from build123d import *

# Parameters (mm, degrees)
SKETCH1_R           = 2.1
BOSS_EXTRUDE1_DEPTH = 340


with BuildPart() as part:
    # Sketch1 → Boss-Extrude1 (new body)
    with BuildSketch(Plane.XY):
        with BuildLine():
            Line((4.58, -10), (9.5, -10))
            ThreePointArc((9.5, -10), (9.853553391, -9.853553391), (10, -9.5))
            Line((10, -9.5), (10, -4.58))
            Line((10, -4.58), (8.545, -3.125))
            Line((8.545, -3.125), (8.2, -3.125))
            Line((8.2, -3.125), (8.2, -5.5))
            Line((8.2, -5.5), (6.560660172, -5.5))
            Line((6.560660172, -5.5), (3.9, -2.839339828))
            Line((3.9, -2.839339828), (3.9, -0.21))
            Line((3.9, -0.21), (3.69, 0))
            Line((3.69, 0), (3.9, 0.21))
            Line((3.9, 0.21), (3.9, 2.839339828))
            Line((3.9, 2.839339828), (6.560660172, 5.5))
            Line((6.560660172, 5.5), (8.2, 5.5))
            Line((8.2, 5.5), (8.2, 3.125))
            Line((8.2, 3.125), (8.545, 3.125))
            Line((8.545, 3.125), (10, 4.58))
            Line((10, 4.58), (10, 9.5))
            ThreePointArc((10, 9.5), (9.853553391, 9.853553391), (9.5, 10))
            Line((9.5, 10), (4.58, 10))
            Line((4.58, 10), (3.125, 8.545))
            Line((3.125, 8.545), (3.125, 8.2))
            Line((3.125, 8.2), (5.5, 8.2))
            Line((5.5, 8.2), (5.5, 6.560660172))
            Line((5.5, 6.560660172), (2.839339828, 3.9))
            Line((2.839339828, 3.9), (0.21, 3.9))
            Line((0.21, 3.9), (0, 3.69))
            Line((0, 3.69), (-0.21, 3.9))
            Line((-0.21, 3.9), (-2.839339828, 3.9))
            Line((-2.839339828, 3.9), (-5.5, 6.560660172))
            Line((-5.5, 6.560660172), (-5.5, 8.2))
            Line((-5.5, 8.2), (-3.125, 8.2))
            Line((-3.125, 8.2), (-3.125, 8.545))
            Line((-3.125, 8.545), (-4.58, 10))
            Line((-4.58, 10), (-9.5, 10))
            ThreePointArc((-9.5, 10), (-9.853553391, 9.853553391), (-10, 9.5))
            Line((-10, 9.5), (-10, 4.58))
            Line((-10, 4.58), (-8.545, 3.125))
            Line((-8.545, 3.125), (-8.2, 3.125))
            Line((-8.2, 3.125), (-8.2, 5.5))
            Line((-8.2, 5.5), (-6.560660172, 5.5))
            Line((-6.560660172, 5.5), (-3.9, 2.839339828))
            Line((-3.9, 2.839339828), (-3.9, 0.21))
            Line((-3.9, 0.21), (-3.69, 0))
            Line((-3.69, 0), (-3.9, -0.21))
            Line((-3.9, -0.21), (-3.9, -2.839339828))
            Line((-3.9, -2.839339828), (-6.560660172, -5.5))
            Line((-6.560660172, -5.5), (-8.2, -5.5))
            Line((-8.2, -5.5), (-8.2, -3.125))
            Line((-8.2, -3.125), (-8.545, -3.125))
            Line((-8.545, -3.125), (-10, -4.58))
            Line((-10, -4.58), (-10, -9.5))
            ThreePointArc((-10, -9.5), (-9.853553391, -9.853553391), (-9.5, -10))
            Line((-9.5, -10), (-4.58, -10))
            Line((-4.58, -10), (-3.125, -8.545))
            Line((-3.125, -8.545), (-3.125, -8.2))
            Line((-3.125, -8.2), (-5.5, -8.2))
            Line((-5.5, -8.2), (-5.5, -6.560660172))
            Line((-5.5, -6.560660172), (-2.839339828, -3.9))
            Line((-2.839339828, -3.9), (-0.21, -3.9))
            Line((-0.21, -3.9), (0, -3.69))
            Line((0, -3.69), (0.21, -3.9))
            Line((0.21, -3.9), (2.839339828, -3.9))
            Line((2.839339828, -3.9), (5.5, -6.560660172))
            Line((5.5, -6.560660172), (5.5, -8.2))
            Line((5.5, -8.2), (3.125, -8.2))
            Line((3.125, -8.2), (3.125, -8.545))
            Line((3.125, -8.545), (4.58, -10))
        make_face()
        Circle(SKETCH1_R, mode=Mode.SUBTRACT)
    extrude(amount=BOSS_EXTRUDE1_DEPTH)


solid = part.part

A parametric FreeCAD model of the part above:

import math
import FreeCAD as App
import Part
import Sketcher
Q = App.Units.Quantity

doc = App.newDocument("Part")
body = doc.addObject("PartDesign::Body", "Body")

sketch1 = body.newObject("Sketcher::SketchObject", "Sketch")
sketch1.AttachmentSupport = (doc.getObject("XY_Plane"), [""])
sketch1.MapMode = "FlatFace"
sketch1.addGeometry(Part.LineSegment(App.Vector(4.58, -10, 0), App.Vector(9.5, -10, 0)), False)
sketch1.addGeometry(Part.ArcOfCircle(Part.Circle(App.Vector(9.5, -9.5, 0), App.Vector(0, 0, 1), 0.5), math.radians(-90), math.radians(0)), False)
sketch1.addGeometry(Part.LineSegment(App.Vector(10, -9.5, 0), App.Vector(10, -4.58, 0)), False)
sketch1.addGeometry(Part.LineSegment(App.Vector(10, -4.58, 0), App.Vector(8.54, -3.12, 0)), False)
sketch1.addGeometry(Part.LineSegment(App.Vector(8.54, -3.12, 0), App.Vector(8.2, -3.12, 0)), False)
sketch1.addGeometry(Part.LineSegment(App.Vector(8.2, -3.12, 0), App.Vector(8.2, -5.5, 0)), False)
sketch1.addGeometry(Part.LineSegment(App.Vector(8.2, -5.5, 0), App.Vector(6.56, -5.5, 0)), False)
sketch1.addGeometry(Part.LineSegment(App.Vector(6.56, -5.5, 0), App.Vector(3.9, -2.84, 0)), False)
sketch1.addGeometry(Part.LineSegment(App.Vector(3.9, -2.84, 0), App.Vector(3.9, -0.21, 0)), False)
sketch1.addGeometry(Part.LineSegment(App.Vector(3.9, -0.21, 0), App.Vector(3.69, 0, 0)), False)
sketch1.addGeometry(Part.LineSegment(App.Vector(3.69, 0, 0), App.Vector(3.9, 0.21, 0)), False)
sketch1.addGeometry(Part.LineSegment(App.Vector(3.9, 0.21, 0), App.Vector(3.9, 2.84, 0)), False)
sketch1.addGeometry(Part.LineSegment(App.Vector(3.9, 2.84, 0), App.Vector(6.56, 5.5, 0)), False)
sketch1.addGeometry(Part.LineSegment(App.Vector(6.56, 5.5, 0), App.Vector(8.2, 5.5, 0)), False)
sketch1.addGeometry(Part.LineSegment(App.Vector(8.2, 5.5, 0), App.Vector(8.2, 3.12, 0)), False)
sketch1.addGeometry(Part.LineSegment(App.Vector(8.2, 3.12, 0), App.Vector(8.54, 3.12, 0)), False)
sketch1.addGeometry(Part.LineSegment(App.Vector(8.54, 3.12, 0), App.Vector(10, 4.58, 0)), False)
sketch1.addGeometry(Part.LineSegment(App.Vector(10, 4.58, 0), App.Vector(10, 9.5, 0)), False)
sketch1.addGeometry(Part.ArcOfCircle(Part.Circle(App.Vector(9.5, 9.5, 0), App.Vector(0, 0, 1), 0.5), math.radians(0), math.radians(90)), False)
sketch1.addGeometry(Part.LineSegment(App.Vector(9.5, 10, 0), App.Vector(4.58, 10, 0)), False)
sketch1.addGeometry(Part.LineSegment(App.Vector(4.58, 10, 0), App.Vector(3.12, 8.54, 0)), False)
sketch1.addGeometry(Part.LineSegment(App.Vector(3.12, 8.54, 0), App.Vector(3.12, 8.2, 0)), False)
sketch1.addGeometry(Part.LineSegment(App.Vector(3.12, 8.2, 0), App.Vector(5.5, 8.2, 0)), False)
sketch1.addGeometry(Part.LineSegment(App.Vector(5.5, 8.2, 0), App.Vector(5.5, 6.56, 0)), False)
sketch1.addGeometry(Part.LineSegment(App.Vector(5.5, 6.56, 0), App.Vector(2.84, 3.9, 0)), False)
sketch1.addGeometry(Part.LineSegment(App.Vector(2.84, 3.9, 0), App.Vector(0.21, 3.9, 0)), False)
sketch1.addGeometry(Part.LineSegment(App.Vector(0.21, 3.9, 0), App.Vector(0, 3.69, 0)), False)
sketch1.addGeometry(Part.LineSegment(App.Vector(0, 3.69, 0), App.Vector(-0.21, 3.9, 0)), False)
sketch1.addGeometry(Part.LineSegment(App.Vector(-0.21, 3.9, 0), App.Vector(-2.84, 3.9, 0)), False)
sketch1.addGeometry(Part.LineSegment(App.Vector(-2.84, 3.9, 0), App.Vector(-5.5, 6.56, 0)), False)
sketch1.addGeometry(Part.LineSegment(App.Vector(-5.5, 6.56, 0), App.Vector(-5.5, 8.2, 0)), False)
sketch1.addGeometry(Part.LineSegment(App.Vector(-5.5, 8.2, 0), App.Vector(-3.12, 8.2, 0)), False)
sketch1.addGeometry(Part.LineSegment(App.Vector(-3.12, 8.2, 0), App.Vector(-3.12, 8.54, 0)), False)
sketch1.addGeometry(Part.LineSegment(App.Vector(-3.12, 8.54, 0), App.Vector(-4.58, 10, 0)), False)
sketch1.addGeometry(Part.LineSegment(App.Vector(-4.58, 10, 0), App.Vector(-9.5, 10, 0)), False)
sketch1.addGeometry(Part.ArcOfCircle(Part.Circle(App.Vector(-9.5, 9.5, 0), App.Vector(0, 0, 1), 0.5), math.radians(90), math.radians(180)), False)
sketch1.addGeometry(Part.LineSegment(App.Vector(-10, 9.5, 0), App.Vector(-10, 4.58, 0)), False)
sketch1.addGeometry(Part.LineSegment(App.Vector(-10, 4.58, 0), App.Vector(-8.54, 3.12, 0)), False)
sketch1.addGeometry(Part.LineSegment(App.Vector(-8.54, 3.12, 0), App.Vector(-8.2, 3.12, 0)), False)
sketch1.addGeometry(Part.LineSegment(App.Vector(-8.2, 3.12, 0), App.Vector(-8.2, 5.5, 0)), False)
sketch1.addGeometry(Part.LineSegment(App.Vector(-8.2, 5.5, 0), App.Vector(-6.56, 5.5, 0)), False)
sketch1.addGeometry(Part.LineSegment(App.Vector(-6.56, 5.5, 0), App.Vector(-3.9, 2.84, 0)), False)
sketch1.addGeometry(Part.LineSegment(App.Vector(-3.9, 2.84, 0), App.Vector(-3.9, 0.21, 0)), False)
sketch1.addGeometry(Part.LineSegment(App.Vector(-3.9, 0.21, 0), App.Vector(-3.69, 0, 0)), False)
sketch1.addGeometry(Part.LineSegment(App.Vector(-3.69, 0, 0), App.Vector(-3.9, -0.21, 0)), False)
sketch1.addGeometry(Part.LineSegment(App.Vector(-3.9, -0.21, 0), App.Vector(-3.9, -2.84, 0)), False)
sketch1.addGeometry(Part.LineSegment(App.Vector(-3.9, -2.84, 0), App.Vector(-6.56, -5.5, 0)), False)
sketch1.addGeometry(Part.LineSegment(App.Vector(-6.56, -5.5, 0), App.Vector(-8.2, -5.5, 0)), False)
sketch1.addGeometry(Part.LineSegment(App.Vector(-8.2, -5.5, 0), App.Vector(-8.2, -3.12, 0)), False)
sketch1.addGeometry(Part.LineSegment(App.Vector(-8.2, -3.12, 0), App.Vector(-8.54, -3.12, 0)), False)
sketch1.addGeometry(Part.LineSegment(App.Vector(-8.54, -3.12, 0), App.Vector(-10, -4.58, 0)), False)
sketch1.addGeometry(Part.LineSegment(App.Vector(-10, -4.58, 0), App.Vector(-10, -9.5, 0)), False)
sketch1.addGeometry(Part.ArcOfCircle(Part.Circle(App.Vector(-9.5, -9.5, 0), App.Vector(0, 0, 1), 0.5), math.radians(180), math.radians(270)), False)
sketch1.addGeometry(Part.LineSegment(App.Vector(-9.5, -10, 0), App.Vector(-4.58, -10, 0)), False)
sketch1.addGeometry(Part.LineSegment(App.Vector(-4.58, -10, 0), App.Vector(-3.12, -8.54, 0)), False)
sketch1.addGeometry(Part.LineSegment(App.Vector(-3.12, -8.54, 0), App.Vector(-3.12, -8.2, 0)), False)
sketch1.addGeometry(Part.LineSegment(App.Vector(-3.12, -8.2, 0), App.Vector(-5.5, -8.2, 0)), False)
sketch1.addGeometry(Part.LineSegment(App.Vector(-5.5, -8.2, 0), App.Vector(-5.5, -6.56, 0)), False)
sketch1.addGeometry(Part.LineSegment(App.Vector(-5.5, -6.56, 0), App.Vector(-2.84, -3.9, 0)), False)
sketch1.addGeometry(Part.LineSegment(App.Vector(-2.84, -3.9, 0), App.Vector(-0.21, -3.9, 0)), False)
sketch1.addGeometry(Part.LineSegment(App.Vector(-0.21, -3.9, 0), App.Vector(0, -3.69, 0)), False)
sketch1.addGeometry(Part.LineSegment(App.Vector(0, -3.69, 0), App.Vector(0.21, -3.9, 0)), False)
sketch1.addGeometry(Part.LineSegment(App.Vector(0.21, -3.9, 0), App.Vector(2.84, -3.9, 0)), False)
sketch1.addGeometry(Part.LineSegment(App.Vector(2.84, -3.9, 0), App.Vector(5.5, -6.56, 0)), False)
sketch1.addGeometry(Part.LineSegment(App.Vector(5.5, -6.56, 0), App.Vector(5.5, -8.2, 0)), False)
sketch1.addGeometry(Part.LineSegment(App.Vector(5.5, -8.2, 0), App.Vector(3.12, -8.2, 0)), False)
sketch1.addGeometry(Part.LineSegment(App.Vector(3.12, -8.2, 0), App.Vector(3.12, -8.54, 0)), False)
sketch1.addGeometry(Part.LineSegment(App.Vector(3.12, -8.54, 0), App.Vector(4.58, -10, 0)), False)
sketch1.addGeometry(Part.Circle(App.Vector(0, 0, 0), App.Vector(0, 0, 1), 2.1), False)
sketch1.addConstraint(Sketcher.Constraint("Tangent", 0, 2, 1, 1))
sketch1.addConstraint(Sketcher.Constraint("Tangent", 1, 2, 2, 1))
sketch1.addConstraint(Sketcher.Constraint("Coincident", 2, 2, 3, 1))
sketch1.addConstraint(Sketcher.Constraint("Coincident", 3, 2, 4, 1))
sketch1.addConstraint(Sketcher.Constraint("Coincident", 4, 2, 5, 1))
sketch1.addConstraint(Sketcher.Constraint("Coincident", 5, 2, 6, 1))
sketch1.addConstraint(Sketcher.Constraint("Coincident", 6, 2, 7, 1))
sketch1.addConstraint(Sketcher.Constraint("Coincident", 7, 2, 8, 1))
sketch1.addConstraint(Sketcher.Constraint("Coincident", 8, 2, 9, 1))
sketch1.addConstraint(Sketcher.Constraint("Coincident", 9, 2, 10, 1))
sketch1.addConstraint(Sketcher.Constraint("Coincident", 10, 2, 11, 1))
sketch1.addConstraint(Sketcher.Constraint("Coincident", 11, 2, 12, 1))
sketch1.addConstraint(Sketcher.Constraint("Coincident", 12, 2, 13, 1))
sketch1.addConstraint(Sketcher.Constraint("Coincident", 13, 2, 14, 1))
sketch1.addConstraint(Sketcher.Constraint("Coincident", 14, 2, 15, 1))
sketch1.addConstraint(Sketcher.Constraint("Coincident", 15, 2, 16, 1))
sketch1.addConstraint(Sketcher.Constraint("Coincident", 16, 2, 17, 1))
sketch1.addConstraint(Sketcher.Constraint("Tangent", 17, 2, 18, 1))
sketch1.addConstraint(Sketcher.Constraint("Tangent", 18, 2, 19, 1))
sketch1.addConstraint(Sketcher.Constraint("Coincident", 19, 2, 20, 1))
sketch1.addConstraint(Sketcher.Constraint("Coincident", 20, 2, 21, 1))
sketch1.addConstraint(Sketcher.Constraint("Coincident", 21, 2, 22, 1))
sketch1.addConstraint(Sketcher.Constraint("Coincident", 22, 2, 23, 1))
sketch1.addConstraint(Sketcher.Constraint("Coincident", 23, 2, 24, 1))
sketch1.addConstraint(Sketcher.Constraint("Coincident", 24, 2, 25, 1))
sketch1.addConstraint(Sketcher.Constraint("Coincident", 25, 2, 26, 1))
sketch1.addConstraint(Sketcher.Constraint("Coincident", 26, 2, 27, 1))
sketch1.addConstraint(Sketcher.Constraint("Coincident", 27, 2, 28, 1))
sketch1.addConstraint(Sketcher.Constraint("Coincident", 28, 2, 29, 1))
sketch1.addConstraint(Sketcher.Constraint("Coincident", 29, 2, 30, 1))
sketch1.addConstraint(Sketcher.Constraint("Coincident", 30, 2, 31, 1))
sketch1.addConstraint(Sketcher.Constraint("Coincident", 31, 2, 32, 1))
sketch1.addConstraint(Sketcher.Constraint("Coincident", 32, 2, 33, 1))
sketch1.addConstraint(Sketcher.Constraint("Coincident", 33, 2, 34, 1))
sketch1.addConstraint(Sketcher.Constraint("Tangent", 34, 2, 35, 1))
sketch1.addConstraint(Sketcher.Constraint("Tangent", 35, 2, 36, 1))
sketch1.addConstraint(Sketcher.Constraint("Coincident", 36, 2, 37, 1))
sketch1.addConstraint(Sketcher.Constraint("Coincident", 37, 2, 38, 1))
sketch1.addConstraint(Sketcher.Constraint("Coincident", 38, 2, 39, 1))
sketch1.addConstraint(Sketcher.Constraint("Coincident", 39, 2, 40, 1))
sketch1.addConstraint(Sketcher.Constraint("Coincident", 40, 2, 41, 1))
sketch1.addConstraint(Sketcher.Constraint("Coincident", 41, 2, 42, 1))
sketch1.addConstraint(Sketcher.Constraint("Coincident", 42, 2, 43, 1))
sketch1.addConstraint(Sketcher.Constraint("Coincident", 43, 2, 44, 1))
sketch1.addConstraint(Sketcher.Constraint("Coincident", 44, 2, 45, 1))
sketch1.addConstraint(Sketcher.Constraint("Coincident", 45, 2, 46, 1))
sketch1.addConstraint(Sketcher.Constraint("Coincident", 46, 2, 47, 1))
sketch1.addConstraint(Sketcher.Constraint("Coincident", 47, 2, 48, 1))
sketch1.addConstraint(Sketcher.Constraint("Coincident", 48, 2, 49, 1))
sketch1.addConstraint(Sketcher.Constraint("Coincident", 49, 2, 50, 1))
sketch1.addConstraint(Sketcher.Constraint("Coincident", 50, 2, 51, 1))
sketch1.addConstraint(Sketcher.Constraint("Tangent", 51, 2, 52, 1))
sketch1.addConstraint(Sketcher.Constraint("Tangent", 52, 2, 53, 1))
sketch1.addConstraint(Sketcher.Constraint("Coincident", 53, 2, 54, 1))
sketch1.addConstraint(Sketcher.Constraint("Coincident", 54, 2, 55, 1))
sketch1.addConstraint(Sketcher.Constraint("Coincident", 55, 2, 56, 1))
sketch1.addConstraint(Sketcher.Constraint("Coincident", 56, 2, 57, 1))
sketch1.addConstraint(Sketcher.Constraint("Coincident", 57, 2, 58, 1))
sketch1.addConstraint(Sketcher.Constraint("Coincident", 58, 2, 59, 1))
sketch1.addConstraint(Sketcher.Constraint("Coincident", 59, 2, 60, 1))
sketch1.addConstraint(Sketcher.Constraint("Coincident", 60, 2, 61, 1))
sketch1.addConstraint(Sketcher.Constraint("Coincident", 61, 2, 62, 1))
sketch1.addConstraint(Sketcher.Constraint("Coincident", 62, 2, 63, 1))
sketch1.addConstraint(Sketcher.Constraint("Coincident", 63, 2, 64, 1))
sketch1.addConstraint(Sketcher.Constraint("Coincident", 64, 2, 65, 1))
sketch1.addConstraint(Sketcher.Constraint("Coincident", 65, 2, 66, 1))
sketch1.addConstraint(Sketcher.Constraint("Coincident", 66, 2, 67, 1))
sketch1.addConstraint(Sketcher.Constraint("Coincident", 67, 2, 0, 1))
sketch1.addConstraint(Sketcher.Constraint("Horizontal", 0))
sketch1.addConstraint(Sketcher.Constraint("Vertical", 2))
sketch1.addConstraint(Sketcher.Constraint("Horizontal", 4))
sketch1.addConstraint(Sketcher.Constraint("Vertical", 5))
sketch1.addConstraint(Sketcher.Constraint("Horizontal", 6))
sketch1.addConstraint(Sketcher.Constraint("Vertical", 8))
sketch1.addConstraint(Sketcher.Constraint("Vertical", 11))
sketch1.addConstraint(Sketcher.Constraint("Horizontal", 13))
sketch1.addConstraint(Sketcher.Constraint("Vertical", 14))
sketch1.addConstraint(Sketcher.Constraint("Horizontal", 15))
sketch1.addConstraint(Sketcher.Constraint("Vertical", 17))
sketch1.addConstraint(Sketcher.Constraint("Horizontal", 19))
sketch1.addConstraint(Sketcher.Constraint("Vertical", 21))
sketch1.addConstraint(Sketcher.Constraint("Horizontal", 22))
sketch1.addConstraint(Sketcher.Constraint("Vertical", 23))
sketch1.addConstraint(Sketcher.Constraint("Horizontal", 25))
sketch1.addConstraint(Sketcher.Constraint("Horizontal", 28))
sketch1.addConstraint(Sketcher.Constraint("Vertical", 30))
sketch1.addConstraint(Sketcher.Constraint("Horizontal", 31))
sketch1.addConstraint(Sketcher.Constraint("Vertical", 32))
sketch1.addConstraint(Sketcher.Constraint("Horizontal", 34))
sketch1.addConstraint(Sketcher.Constraint("Vertical", 36))
sketch1.addConstraint(Sketcher.Constraint("Horizontal", 38))
sketch1.addConstraint(Sketcher.Constraint("Vertical", 39))
sketch1.addConstraint(Sketcher.Constraint("Horizontal", 40))
sketch1.addConstraint(Sketcher.Constraint("Vertical", 42))
sketch1.addConstraint(Sketcher.Constraint("Vertical", 45))
sketch1.addConstraint(Sketcher.Constraint("Horizontal", 47))
sketch1.addConstraint(Sketcher.Constraint("Vertical", 48))
sketch1.addConstraint(Sketcher.Constraint("Horizontal", 49))
sketch1.addConstraint(Sketcher.Constraint("Vertical", 51))
sketch1.addConstraint(Sketcher.Constraint("Horizontal", 53))
sketch1.addConstraint(Sketcher.Constraint("Vertical", 55))
sketch1.addConstraint(Sketcher.Constraint("Horizontal", 56))
sketch1.addConstraint(Sketcher.Constraint("Vertical", 57))
sketch1.addConstraint(Sketcher.Constraint("Horizontal", 59))
sketch1.addConstraint(Sketcher.Constraint("Horizontal", 62))
sketch1.addConstraint(Sketcher.Constraint("Vertical", 64))
sketch1.addConstraint(Sketcher.Constraint("Horizontal", 65))
sketch1.addConstraint(Sketcher.Constraint("Vertical", 66))
sketch1.addConstraint(Sketcher.Constraint("Coincident", 68, 3, -1, 1))
sketch1.addConstraint(Sketcher.Constraint("Equal", 1, 18))
sketch1.addConstraint(Sketcher.Constraint("Equal", 18, 35))
sketch1.addConstraint(Sketcher.Constraint("Equal", 35, 52))
sketch1.addConstraint(Sketcher.Constraint("Symmetric", 1, 3, 35, 3, -1, 1))
sketch1.addConstraint(Sketcher.Constraint("Symmetric", 18, 3, 52, 3, -1, 1))
sketch1.addConstraint(Sketcher.Constraint("Symmetric", 3, 2, 37, 2, -1, 1))
sketch1.addConstraint(Sketcher.Constraint("Symmetric", 5, 2, 39, 2, -1, 1))
sketch1.addConstraint(Sketcher.Constraint("Symmetric", 7, 2, 41, 2, -1, 1))
sketch1.addConstraint(Sketcher.Constraint("Symmetric", 9, 2, 43, 2, -1, 1))
sketch1.addConstraint(Sketcher.Constraint("Symmetric", 10, 2, 44, 2, -1, 1))
sketch1.addConstraint(Sketcher.Constraint("Symmetric", 12, 2, 46, 2, -1, 1))
sketch1.addConstraint(Sketcher.Constraint("Symmetric", 14, 2, 48, 2, -1, 1))
sketch1.addConstraint(Sketcher.Constraint("Symmetric", 20, 2, 54, 2, -1, 1))
sketch1.addConstraint(Sketcher.Constraint("Symmetric", 22, 2, 56, 2, -1, 1))
sketch1.addConstraint(Sketcher.Constraint("Symmetric", 24, 2, 58, 2, -1, 1))
sketch1.addConstraint(Sketcher.Constraint("Symmetric", 26, 2, 60, 2, -1, 1))
sketch1.addConstraint(Sketcher.Constraint("Symmetric", 27, 2, 61, 2, -1, 1))
sketch1.addConstraint(Sketcher.Constraint("Symmetric", 29, 2, 63, 2, -1, 1))
sketch1.addConstraint(Sketcher.Constraint("Symmetric", 31, 2, 65, 2, -1, 1))
sketch1.addConstraint(Sketcher.Constraint("Symmetric", 18, 3, 35, 3, -2))
sketch1.addConstraint(Sketcher.Constraint("Symmetric", 25, 2, 27, 2, -2))
sketch1.addConstraint(Sketcher.Constraint("Symmetric", 23, 2, 29, 2, -2))
sketch1.addConstraint(Sketcher.Constraint("Symmetric", 21, 2, 31, 2, -2))
sketch1.addConstraint(Sketcher.Constraint("Symmetric", 15, 2, 37, 2, -2))
sketch1.addConstraint(Sketcher.Constraint("Symmetric", 13, 2, 39, 2, -2))
sketch1.addConstraint(Sketcher.Constraint("Symmetric", 11, 2, 41, 2, -2))
sketch1.addConstraint(Sketcher.Constraint("PointOnObject", 9, 2, -1))
sketch1.addConstraint(Sketcher.Constraint("PointOnObject", 26, 2, -2))
sketch1.addConstraint(Sketcher.Constraint("Parallel", 3, 7))
sketch1.addConstraint(Sketcher.Constraint("Parallel", 7, 9))
sketch1.addConstraint(Sketcher.Constraint("Perpendicular", 9, 10))
sketch1.addConstraint(Sketcher.Constraint("Parallel", 10, 12))
sketch1.addConstraint(Sketcher.Constraint("Parallel", 12, 16))
sketch1.addConstraint(Sketcher.Constraint("Parallel", 16, 20))
sketch1.addConstraint(Sketcher.Constraint("Parallel", 20, 24))
sketch1.addConstraint(Sketcher.Constraint("Parallel", 24, 26))
sketch1.addConstraint(Sketcher.Constraint("Perpendicular", 26, 27))
sketch1.addConstraint(Sketcher.Constraint("Parallel", 27, 29))
sketch1.addConstraint(Sketcher.Constraint("Parallel", 29, 33))
sketch1.addConstraint(Sketcher.Constraint("Parallel", 33, 37))
sketch1.addConstraint(Sketcher.Constraint("Parallel", 37, 41))
sketch1.addConstraint(Sketcher.Constraint("Parallel", 41, 43))
sketch1.addConstraint(Sketcher.Constraint("Parallel", 44, 46))
sketch1.addConstraint(Sketcher.Constraint("Parallel", 46, 50))
sketch1.addConstraint(Sketcher.Constraint("Parallel", 50, 54))
sketch1.addConstraint(Sketcher.Constraint("Parallel", 54, 58))
sketch1.addConstraint(Sketcher.Constraint("Parallel", 58, 60))
sketch1.addConstraint(Sketcher.Constraint("Parallel", 61, 63))
sketch1.addConstraint(Sketcher.Constraint("Parallel", 63, 67))
sketch1.addConstraint(Sketcher.Constraint("Horizontal", 20, 2, 32, 2))
sketch1.addConstraint(Sketcher.Constraint("Horizontal", 2, 2, 50, 2))
sketch1.addConstraint(Sketcher.Constraint("Horizontal", 54, 2, 66, 2))
sketch1.addConstraint(Sketcher.Constraint("Equal", 53, 2))
sketch1.addConstraint(Sketcher.Constraint("Equal", 65, 5))
sketch1.addConstraint(Sketcher.Constraint("Equal", 62, 8))
sketch1.addConstraint(Sketcher.Constraint("Equal", 49, 21))
sketch1.addConstraint(Sketcher.Constraint("Equal", 47, 23))
sketch1.addConstraint(Sketcher.Constraint("Equal", 16, 20))
sketch1.addConstraint(Sketcher.Constraint("Equal", 12, 24))
sketch1.addConstraint(Sketcher.Constraint("Equal", 10, 26))
sketch1.addConstraint(Sketcher.Constraint("Diameter", 68, Q("4.2 mm")))
sketch1.addConstraint(Sketcher.Constraint("Radius", 1, Q("0.5 mm")))
sketch1.addConstraint(Sketcher.Constraint("DistanceY", 0, 2, -1, 1, Q("10 mm")))
sketch1.addConstraint(Sketcher.Constraint("DistanceX", 0, 1, 0, 2, Q("4.92 mm")))
sketch1.addConstraint(Sketcher.Constraint("DistanceX", -1, 1, 4, 2, Q("8.2 mm")))
sketch1.addConstraint(Sketcher.Constraint("DistanceY", 5, 2, -1, 1, Q("5.5 mm")))
sketch1.addConstraint(Sketcher.Constraint("DistanceX", -1, 1, 7, 2, Q("3.9 mm")))
sketch1.addConstraint(Sketcher.Constraint("DistanceX", 4, 2, 4, 1, Q("0.345 mm")))
sketch1.addConstraint(Sketcher.Constraint("DistanceY", 8, 2, -1, 1, Q("0.21 mm")))
sketch1.addConstraint(Sketcher.Constraint("DistanceX", 6, 2, 6, 1, Q("1.63934 mm")))
pad1 = body.newObject("PartDesign::Pad", "Pad")
pad1.Profile = sketch1
pad1.Length = 340

doc.recompute()
